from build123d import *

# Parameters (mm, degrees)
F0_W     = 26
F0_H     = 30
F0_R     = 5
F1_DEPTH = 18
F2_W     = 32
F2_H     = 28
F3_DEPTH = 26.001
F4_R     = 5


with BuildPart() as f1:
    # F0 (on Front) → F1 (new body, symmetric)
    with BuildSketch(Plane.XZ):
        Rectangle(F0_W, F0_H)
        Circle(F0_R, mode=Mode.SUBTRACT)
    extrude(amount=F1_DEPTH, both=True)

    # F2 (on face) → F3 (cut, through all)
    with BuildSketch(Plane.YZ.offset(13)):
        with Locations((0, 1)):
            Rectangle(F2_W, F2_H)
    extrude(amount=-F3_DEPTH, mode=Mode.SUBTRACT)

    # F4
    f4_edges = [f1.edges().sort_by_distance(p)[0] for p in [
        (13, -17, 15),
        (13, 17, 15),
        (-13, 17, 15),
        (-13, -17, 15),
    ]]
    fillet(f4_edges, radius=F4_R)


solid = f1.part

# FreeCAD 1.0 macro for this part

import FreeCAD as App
import Part
import Sketcher

V = App.Vector
Q = App.Units.Quantity


def edges_at(feature, points):
    """Names of the edges that pass closest to the given points."""
    edges = feature.Shape.Edges
    near = lambda p: min(range(len(edges)), key=lambda i: edges[i].distToShape(Part.Vertex(*p))[0])
    return sorted({f"Edge{near(p) + 1}" for p in points})

doc = App.newDocument("Part")
body = doc.addObject("PartDesign::Body", "Body")

# Sketch on XZ plane
sketch1 = body.newObject("Sketcher::SketchObject", "Sketch")
sketch1.AttachmentSupport = (doc.getObject("XZ_Plane"), [""])
sketch1.MapMode = "FlatFace"
sketch1.addGeometry([
    Part.LineSegment(V(-13, 15, 0), V(-13, -15, 0)),  # 0
    Part.LineSegment(V(-13, -15, 0), V(13, -15, 0)),  # 1
    Part.LineSegment(V(13, -15, 0), V(13, 15, 0)),  # 2
    Part.LineSegment(V(13, 15, 0), V(-13, 15, 0)),  # 3
    Part.Circle(V(0, 0, 0), V(0, 0, 1), 5),  # 4
], False)
sketch1.addConstraint([
    Sketcher.Constraint("Coincident", 0, 2, 1, 1),
    Sketcher.Constraint("Coincident", 1, 2, 2, 1),
    Sketcher.Constraint("Coincident", 2, 2, 3, 1),
    Sketcher.Constraint("Coincident", 3, 2, 0, 1),
    Sketcher.Constraint("Vertical", 0),
    Sketcher.Constraint("Horizontal", 1),
    Sketcher.Constraint("Vertical", 2),
    Sketcher.Constraint("Horizontal", 3),
    Sketcher.Constraint("Coincident", 4, 3, -1, 1),
    Sketcher.Constraint("Symmetric", 0, 2, 2, 2, -1, 1),
    Sketcher.Constraint("Diameter", 4, Q("10 mm")),
    Sketcher.Constraint("DistanceX", 1, 1, 1, 2, Q("26 mm")),
    Sketcher.Constraint("DistanceY", 0, 2, 0, 1, Q("30 mm")),
])
pad1 = body.newObject("PartDesign::Pad", "Pad")
pad1.Profile = sketch1
pad1.Length = 36
pad1.Midplane = True

# Sketch on YZ plane
sketch2 = body.newObject("Sketcher::SketchObject", "Sketch001")
sketch2.AttachmentSupport = (doc.getObject("YZ_Plane"), [""])
sketch2.MapMode = "FlatFace"
sketch2.AttachmentOffset = App.Placement(V(0, 0, 13), App.Rotation())
sketch2.addGeometry([
    Part.LineSegment(V(-16, 15, 0), V(-16, -13, 0)),
    Part.LineSegment(V(-16, -13, 0), V(16, -13, 0)),
    Part.LineSegment(V(16, -13, 0), V(16, 15, 0)),
    Part.LineSegment(V(16, 15, 0), V(-16, 15, 0)),
], False)
sketch2.addConstraint([
    Sketcher.Constraint("Coincident", 0, 2, 1, 1),
    Sketcher.Constraint("Coincident", 1, 2, 2, 1),
    Sketcher.Constraint("Coincident", 2, 2, 3, 1),
    Sketcher.Constraint("Coincident", 3, 2, 0, 1),
    Sketcher.Constraint("Vertical", 0),
    Sketcher.Constraint("Horizontal", 1),
    Sketcher.Constraint("Vertical", 2),
    Sketcher.Constraint("Horizontal", 3),
    Sketcher.Constraint("DistanceX", 1, 1, 1, 2, Q("32 mm")),
    Sketcher.Constraint("DistanceY", 0, 2, 0, 1, Q("28 mm")),
    Sketcher.Constraint("DistanceX", 0, 2, -1, 1, Q("16 mm")),
    Sketcher.Constraint("DistanceY", 0, 2, -1, 1, Q("13 mm")),
])
pocket1 = body.newObject("PartDesign::Pocket", "Pocket")
pocket1.Profile = sketch2
pocket1.Type = "ThroughAll"
doc.recompute()

fillet = body.newObject("PartDesign::Fillet", "Fillet")
fillet.Base = (pocket1, edges_at(pocket1, [
    (13, -17, 15),
    (13, 17, 15),
    (-13, 17, 15),
    (-13, -17, 15),
]))
fillet.Radius = 5

doc.recompute()
